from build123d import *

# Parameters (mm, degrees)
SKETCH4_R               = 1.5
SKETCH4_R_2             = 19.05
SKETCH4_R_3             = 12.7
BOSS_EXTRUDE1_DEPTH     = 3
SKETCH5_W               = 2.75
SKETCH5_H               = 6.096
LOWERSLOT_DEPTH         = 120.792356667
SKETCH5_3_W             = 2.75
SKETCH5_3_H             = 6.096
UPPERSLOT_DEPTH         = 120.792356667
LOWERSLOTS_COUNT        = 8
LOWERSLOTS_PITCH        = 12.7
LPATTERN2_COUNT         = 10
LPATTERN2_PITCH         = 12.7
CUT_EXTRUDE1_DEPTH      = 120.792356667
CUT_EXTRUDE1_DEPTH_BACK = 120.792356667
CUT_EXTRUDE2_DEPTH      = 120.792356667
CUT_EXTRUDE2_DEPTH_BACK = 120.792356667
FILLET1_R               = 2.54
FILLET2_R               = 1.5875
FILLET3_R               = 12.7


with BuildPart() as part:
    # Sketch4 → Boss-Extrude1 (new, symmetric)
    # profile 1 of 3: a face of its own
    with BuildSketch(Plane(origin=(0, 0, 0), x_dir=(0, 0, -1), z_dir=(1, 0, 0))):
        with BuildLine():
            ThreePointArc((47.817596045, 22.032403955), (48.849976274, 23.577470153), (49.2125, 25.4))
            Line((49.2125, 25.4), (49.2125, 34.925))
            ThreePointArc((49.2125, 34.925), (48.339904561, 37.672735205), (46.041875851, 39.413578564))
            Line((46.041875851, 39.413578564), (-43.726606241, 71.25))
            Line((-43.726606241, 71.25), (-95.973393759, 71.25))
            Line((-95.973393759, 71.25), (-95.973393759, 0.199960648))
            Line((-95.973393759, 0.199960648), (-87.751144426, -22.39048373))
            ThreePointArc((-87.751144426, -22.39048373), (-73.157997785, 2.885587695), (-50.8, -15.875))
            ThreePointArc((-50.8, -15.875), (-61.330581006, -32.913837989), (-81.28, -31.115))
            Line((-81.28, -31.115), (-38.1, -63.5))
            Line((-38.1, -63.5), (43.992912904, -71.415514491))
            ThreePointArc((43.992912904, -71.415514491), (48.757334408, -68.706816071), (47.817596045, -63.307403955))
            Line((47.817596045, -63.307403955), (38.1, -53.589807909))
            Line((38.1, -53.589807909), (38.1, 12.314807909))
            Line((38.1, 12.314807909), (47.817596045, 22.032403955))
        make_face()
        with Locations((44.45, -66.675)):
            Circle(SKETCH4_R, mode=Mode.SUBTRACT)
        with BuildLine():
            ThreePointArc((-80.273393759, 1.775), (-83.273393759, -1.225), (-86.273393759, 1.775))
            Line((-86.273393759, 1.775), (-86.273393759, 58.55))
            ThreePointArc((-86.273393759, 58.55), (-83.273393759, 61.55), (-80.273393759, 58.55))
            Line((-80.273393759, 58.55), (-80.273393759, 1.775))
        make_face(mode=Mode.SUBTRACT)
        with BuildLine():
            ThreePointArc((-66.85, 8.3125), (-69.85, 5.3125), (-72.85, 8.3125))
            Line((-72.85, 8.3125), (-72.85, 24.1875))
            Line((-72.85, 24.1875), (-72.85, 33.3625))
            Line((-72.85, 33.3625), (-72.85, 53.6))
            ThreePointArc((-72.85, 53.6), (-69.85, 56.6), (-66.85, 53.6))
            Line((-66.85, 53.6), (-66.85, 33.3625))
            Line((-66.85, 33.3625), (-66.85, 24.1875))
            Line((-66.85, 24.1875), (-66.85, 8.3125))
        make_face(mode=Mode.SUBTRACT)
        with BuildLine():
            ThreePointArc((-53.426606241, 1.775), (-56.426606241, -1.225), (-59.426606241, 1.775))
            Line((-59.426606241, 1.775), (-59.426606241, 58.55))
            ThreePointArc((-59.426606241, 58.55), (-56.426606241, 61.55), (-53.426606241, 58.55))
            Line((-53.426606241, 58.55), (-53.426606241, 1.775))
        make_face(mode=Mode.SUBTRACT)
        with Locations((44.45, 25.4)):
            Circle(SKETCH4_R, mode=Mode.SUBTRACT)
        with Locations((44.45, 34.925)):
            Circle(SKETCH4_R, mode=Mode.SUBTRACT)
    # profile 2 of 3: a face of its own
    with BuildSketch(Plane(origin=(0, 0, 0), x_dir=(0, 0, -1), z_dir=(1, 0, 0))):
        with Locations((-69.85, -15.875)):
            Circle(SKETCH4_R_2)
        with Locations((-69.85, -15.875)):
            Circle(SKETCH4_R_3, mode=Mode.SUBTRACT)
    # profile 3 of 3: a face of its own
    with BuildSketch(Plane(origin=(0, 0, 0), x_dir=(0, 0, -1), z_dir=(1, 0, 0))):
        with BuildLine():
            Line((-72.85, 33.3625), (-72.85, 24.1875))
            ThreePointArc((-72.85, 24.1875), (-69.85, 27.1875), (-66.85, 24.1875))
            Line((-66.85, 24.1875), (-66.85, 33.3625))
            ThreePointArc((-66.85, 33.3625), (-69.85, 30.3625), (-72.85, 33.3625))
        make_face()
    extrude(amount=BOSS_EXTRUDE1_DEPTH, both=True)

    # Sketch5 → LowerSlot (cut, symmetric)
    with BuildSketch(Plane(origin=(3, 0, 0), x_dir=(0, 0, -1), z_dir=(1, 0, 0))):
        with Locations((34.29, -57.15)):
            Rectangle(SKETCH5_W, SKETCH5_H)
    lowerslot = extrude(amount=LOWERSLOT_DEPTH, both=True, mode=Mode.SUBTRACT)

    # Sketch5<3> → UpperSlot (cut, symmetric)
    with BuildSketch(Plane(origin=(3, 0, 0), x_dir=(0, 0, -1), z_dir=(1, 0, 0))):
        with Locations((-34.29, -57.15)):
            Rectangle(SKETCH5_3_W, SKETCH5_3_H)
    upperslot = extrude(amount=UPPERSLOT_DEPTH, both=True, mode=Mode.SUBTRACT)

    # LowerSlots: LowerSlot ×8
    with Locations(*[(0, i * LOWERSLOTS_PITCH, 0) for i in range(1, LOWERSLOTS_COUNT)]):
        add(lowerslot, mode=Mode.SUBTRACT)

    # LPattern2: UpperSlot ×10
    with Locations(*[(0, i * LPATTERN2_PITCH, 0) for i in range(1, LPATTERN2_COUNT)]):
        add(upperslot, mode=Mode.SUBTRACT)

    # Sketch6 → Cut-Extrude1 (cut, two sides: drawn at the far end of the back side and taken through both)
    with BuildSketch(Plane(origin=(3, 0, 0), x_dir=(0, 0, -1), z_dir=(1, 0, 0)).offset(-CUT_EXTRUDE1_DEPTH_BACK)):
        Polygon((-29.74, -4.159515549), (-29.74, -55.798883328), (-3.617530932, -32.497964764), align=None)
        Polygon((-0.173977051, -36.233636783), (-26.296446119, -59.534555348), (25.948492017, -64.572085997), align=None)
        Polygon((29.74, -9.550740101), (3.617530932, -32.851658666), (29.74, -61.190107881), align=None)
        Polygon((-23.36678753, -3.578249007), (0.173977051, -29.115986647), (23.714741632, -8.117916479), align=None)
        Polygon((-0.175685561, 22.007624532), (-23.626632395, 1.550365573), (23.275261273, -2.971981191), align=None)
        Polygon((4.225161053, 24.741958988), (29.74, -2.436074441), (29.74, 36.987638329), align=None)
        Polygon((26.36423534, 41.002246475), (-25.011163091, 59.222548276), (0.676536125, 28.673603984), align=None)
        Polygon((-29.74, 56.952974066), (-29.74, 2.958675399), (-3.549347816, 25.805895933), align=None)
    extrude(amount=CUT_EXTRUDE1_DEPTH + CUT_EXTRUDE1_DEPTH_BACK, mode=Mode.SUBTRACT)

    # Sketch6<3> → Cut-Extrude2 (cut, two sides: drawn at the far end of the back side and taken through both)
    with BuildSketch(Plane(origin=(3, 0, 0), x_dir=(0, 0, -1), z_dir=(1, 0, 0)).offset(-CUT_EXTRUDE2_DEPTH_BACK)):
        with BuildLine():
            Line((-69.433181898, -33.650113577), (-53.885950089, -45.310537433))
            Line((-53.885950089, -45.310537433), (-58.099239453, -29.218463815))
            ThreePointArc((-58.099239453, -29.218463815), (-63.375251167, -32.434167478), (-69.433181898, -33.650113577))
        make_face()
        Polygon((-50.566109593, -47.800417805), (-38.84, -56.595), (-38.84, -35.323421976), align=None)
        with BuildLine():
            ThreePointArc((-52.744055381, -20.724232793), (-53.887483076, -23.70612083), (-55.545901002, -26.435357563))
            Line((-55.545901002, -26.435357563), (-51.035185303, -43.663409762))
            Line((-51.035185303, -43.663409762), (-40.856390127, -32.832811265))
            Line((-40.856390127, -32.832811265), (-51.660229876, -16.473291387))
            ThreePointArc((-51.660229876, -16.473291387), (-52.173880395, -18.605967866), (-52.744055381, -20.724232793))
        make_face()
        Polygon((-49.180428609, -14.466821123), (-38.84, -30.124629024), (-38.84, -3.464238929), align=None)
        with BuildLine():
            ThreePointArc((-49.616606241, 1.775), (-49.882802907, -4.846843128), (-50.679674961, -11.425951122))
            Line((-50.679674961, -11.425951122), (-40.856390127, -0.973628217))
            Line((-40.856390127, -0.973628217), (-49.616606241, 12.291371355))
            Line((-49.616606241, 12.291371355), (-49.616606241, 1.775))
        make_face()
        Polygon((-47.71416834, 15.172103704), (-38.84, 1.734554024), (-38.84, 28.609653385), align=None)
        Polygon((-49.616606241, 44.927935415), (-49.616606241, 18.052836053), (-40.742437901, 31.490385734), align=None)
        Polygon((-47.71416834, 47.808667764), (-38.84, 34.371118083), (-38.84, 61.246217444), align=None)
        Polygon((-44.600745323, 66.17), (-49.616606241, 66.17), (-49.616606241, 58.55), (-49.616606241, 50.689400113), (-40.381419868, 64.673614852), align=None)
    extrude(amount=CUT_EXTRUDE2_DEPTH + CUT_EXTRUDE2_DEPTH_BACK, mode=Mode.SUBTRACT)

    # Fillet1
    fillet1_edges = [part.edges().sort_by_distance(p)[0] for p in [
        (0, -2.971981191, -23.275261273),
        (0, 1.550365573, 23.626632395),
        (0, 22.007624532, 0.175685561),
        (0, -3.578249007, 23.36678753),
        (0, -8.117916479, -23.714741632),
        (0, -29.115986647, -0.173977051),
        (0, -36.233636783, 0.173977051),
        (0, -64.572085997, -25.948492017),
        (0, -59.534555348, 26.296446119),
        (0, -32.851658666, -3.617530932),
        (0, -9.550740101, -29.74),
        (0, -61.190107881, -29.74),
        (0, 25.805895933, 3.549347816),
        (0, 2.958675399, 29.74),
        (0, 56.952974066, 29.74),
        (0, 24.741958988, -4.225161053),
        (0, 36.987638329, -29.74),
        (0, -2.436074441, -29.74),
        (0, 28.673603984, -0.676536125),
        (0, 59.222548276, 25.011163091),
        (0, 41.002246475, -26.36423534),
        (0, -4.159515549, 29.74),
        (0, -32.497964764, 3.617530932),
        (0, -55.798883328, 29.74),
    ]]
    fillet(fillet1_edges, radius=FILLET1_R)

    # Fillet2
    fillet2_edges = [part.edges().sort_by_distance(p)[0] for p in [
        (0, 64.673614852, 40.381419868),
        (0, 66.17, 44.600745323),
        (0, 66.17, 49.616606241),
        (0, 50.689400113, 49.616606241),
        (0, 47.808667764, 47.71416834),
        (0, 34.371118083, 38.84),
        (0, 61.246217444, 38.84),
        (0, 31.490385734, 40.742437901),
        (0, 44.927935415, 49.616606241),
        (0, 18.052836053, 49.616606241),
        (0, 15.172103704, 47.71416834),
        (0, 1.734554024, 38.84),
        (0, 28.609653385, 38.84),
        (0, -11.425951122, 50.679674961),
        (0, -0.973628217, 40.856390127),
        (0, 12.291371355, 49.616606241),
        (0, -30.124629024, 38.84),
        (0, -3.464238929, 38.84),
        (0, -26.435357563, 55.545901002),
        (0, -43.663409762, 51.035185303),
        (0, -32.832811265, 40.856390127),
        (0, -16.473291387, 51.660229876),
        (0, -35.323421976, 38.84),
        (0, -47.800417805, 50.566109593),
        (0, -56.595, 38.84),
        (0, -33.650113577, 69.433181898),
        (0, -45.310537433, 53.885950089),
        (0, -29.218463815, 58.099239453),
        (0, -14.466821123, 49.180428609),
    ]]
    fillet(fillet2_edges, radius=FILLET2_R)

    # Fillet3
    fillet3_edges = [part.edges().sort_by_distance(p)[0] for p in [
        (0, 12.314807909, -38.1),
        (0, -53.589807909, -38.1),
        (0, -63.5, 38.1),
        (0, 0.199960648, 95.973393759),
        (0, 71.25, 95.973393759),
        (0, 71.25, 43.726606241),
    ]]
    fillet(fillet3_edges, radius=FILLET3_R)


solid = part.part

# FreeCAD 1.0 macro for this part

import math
import FreeCAD as App
import Part
import Sketcher
from FreeCAD import Vector
Q = App.Units.Quantity


def edges_at(feature, points):
    """Names of the edges that pass closest to the given points."""
    edges = feature.Shape.Edges
    near = lambda p: min(range(len(edges)), key=lambda i: edges[i].distToShape(Part.Vertex(*p))[0])
    return sorted({f"Edge{near(p) + 1}" for p in points})


def add_polygon(sketch, points):
    """Adds a closed chain of lines whose ends are joined by coincident constraints."""
    first, n = sketch.GeometryCount, len(points)
    for a, b in zip(points, points[1:] + points[:1]):
        sketch.addGeometry(Part.LineSegment(App.Vector(*a, 0), App.Vector(*b, 0)), False)
    for i in range(n):
        sketch.addConstraint(Sketcher.Constraint("Coincident", first + i, 2, first + (i + 1) % n, 1))

doc = App.newDocument("Part")
body = doc.addObject("PartDesign::Body", "Body")

# Sketch on YZ plane
sketch1 = doc.addObject("Sketcher::SketchObject", "Sketch")
body.addObject(sketch1)
sketch1.AttachmentSupport = (doc.YZ_Plane, [""])
sketch1.MapMode = "FlatFace"
sketch1.addGeometry([
    Part.ArcOfCircle(Part.Circle(Vector(25.4, -44.5, 0), Vector(0, 0, 1), 4.8), math.radians(-135), math.radians(-90)),  # 0
    Part.LineSegment(Vector(25.4, -49.2, 0), Vector(34.9, -49.2, 0)),  # 1
    Part.ArcOfCircle(Part.Circle(Vector(34.9, -44.5, 0), Vector(0, 0, 1), 4.8), math.radians(-90), math.radians(-20)),  # 2
    Part.LineSegment(Vector(39.4, -46, 0), Vector(71.2, 43.7, 0)),  # 3
    Part.LineSegment(Vector(71.2, 43.7, 0), Vector(71.2, 96, 0)),  # 4
    Part.LineSegment(Vector(71.2, 96, 0), Vector(0.2, 96, 0)),  # 5
    Part.LineSegment(Vector(0.2, 96, 0), Vector(-22.4, 87.8, 0)),  # 6
    Part.ArcOfCircle(Part.Circle(Vector(-15.9, 69.8, 0), Vector(0, 0, 1), 19.1), math.radians(110), math.radians(143)),  # 7
    Part.LineSegment(Vector(-31.1, 81.3, 0), Vector(-63.5, 38.1, 0)),  # 8
    Part.LineSegment(Vector(-63.5, 38.1, 0), Vector(-71.4, -44, 0)),  # 9
    Part.ArcOfCircle(Part.Circle(Vector(-66.7, -44.5, 0), Vector(0, 0, 1), 4.8), math.radians(174), math.radians(315)),  # 10
    Part.LineSegment(Vector(-63.3, -47.8, 0), Vector(-53.6, -38.1, 0)),  # 11
    Part.LineSegment(Vector(-53.6, -38.1, 0), Vector(12.3, -38.1, 0)),  # 12
    Part.LineSegment(Vector(12.3, -38.1, 0), Vector(22, -47.8, 0)),  # 13
    Part.Circle(Vector(-66.7, -44.5, 0), Vector(0, 0, 1), 1.5),  # 14
    Part.LineSegment(Vector(58.5, 80.3, 0), Vector(1.8, 80.3, 0)),  # 15
    Part.ArcOfCircle(Part.Circle(Vector(1.8, 83.3, 0), Vector(0, 0, 1), 3), math.radians(90), math.radians(270)),  # 16
    Part.LineSegment(Vector(1.8, 86.3, 0), Vector(58.5, 86.3, 0)),  # 17
    Part.ArcOfCircle(Part.Circle(Vector(58.5, 83.3, 0), Vector(0, 0, 1), 3), math.radians(-90), math.radians(90)),  # 18
    Part.LineSegment(Vector(53.6, 66.8, 0), Vector(33.4, 66.8, 0)),  # 19
    Part.ArcOfCircle(Part.Circle(Vector(33.4, 69.8, 0), Vector(0, 0, 1), 3), math.radians(90), math.radians(270)),  # 20
    Part.LineSegment(Vector(33.4, 72.8, 0), Vector(53.6, 72.8, 0)),  # 21
    Part.ArcOfCircle(Part.Circle(Vector(53.6, 69.8, 0), Vector(0, 0, 1), 3), math.radians(-90), math.radians(90)),  # 22
    Part.LineSegment(Vector(24.2, 66.8, 0), Vector(8.3, 66.8, 0)),  # 23
    Part.ArcOfCircle(Part.Circle(Vector(8.3, 69.8, 0), Vector(0, 0, 1), 3), math.radians(90), math.radians(270)),  # 24
    Part.LineSegment(Vector(8.3, 72.8, 0), Vector(24.2, 72.8, 0)),  # 25
    Part.ArcOfCircle(Part.Circle(Vector(24.2, 69.8, 0), Vector(0, 0, 1), 3), math.radians(-90), math.radians(90)),  # 26
    Part.LineSegment(Vector(58.5, 53.4, 0), Vector(1.8, 53.4, 0)),  # 27
    Part.ArcOfCircle(Part.Circle(Vector(1.8, 56.4, 0), Vector(0, 0, 1), 3), math.radians(90), math.radians(270)),  # 28
    Part.LineSegment(Vector(1.8, 59.4, 0), Vector(58.5, 59.4, 0)),  # 29
    Part.ArcOfCircle(Part.Circle(Vector(58.5, 56.4, 0), Vector(0, 0, 1), 3), math.radians(-90), math.radians(90)),  # 30
    Part.Circle(Vector(25.4, -44.5, 0), Vector(0, 0, 1), 1.5),  # 31
    Part.Circle(Vector(34.9, -44.5, 0), Vector(0, 0, 1), 1.5),  # 32
    Part.Circle(Vector(-15.9, 69.8, 0), Vector(0, 0, 1), 12.7),  # 33
], False)
sketch1.addConstraint([
    Sketcher.Constraint("Tangent", 0, 2, 1, 1),
    Sketcher.Constraint("Tangent", 1, 2, 2, 1),
    Sketcher.Constraint("Tangent", 2, 2, 3, 1),
    Sketcher.Constraint("Coincident", 3, 2, 4, 1),
    Sketcher.Constraint("Coincident", 4, 2, 5, 1),
    Sketcher.Constraint("Coincident", 5, 2, 6, 1),
    Sketcher.Constraint("Tangent", 6, 2, 7, 1),
    Sketcher.Constraint("Tangent", 7, 2, 8, 1),
    Sketcher.Constraint("Coincident", 8, 2, 9, 1),
    Sketcher.Constraint("Tangent", 9, 2, 10, 1),
    Sketcher.Constraint("Tangent", 10, 2, 11, 1),
    Sketcher.Constraint("Coincident", 11, 2, 12, 1),
    Sketcher.Constraint("Coincident", 12, 2, 13, 1),
    Sketcher.Constraint("Tangent", 13, 2, 0, 1),
    Sketcher.Constraint("Tangent", 15, 2, 16, 2),
    Sketcher.Constraint("Tangent", 16, 1, 17, 1),
    Sketcher.Constraint("Tangent", 17, 2, 18, 2),
    Sketcher.Constraint("Tangent", 18, 1, 15, 1),
    Sketcher.Constraint("Tangent", 19, 2, 20, 2),
    Sketcher.Constraint("Tangent", 20, 1, 21, 1),
    Sketcher.Constraint("Tangent", 21, 2, 22, 2),
    Sketcher.Constraint("Tangent", 22, 1, 19, 1),
    Sketcher.Constraint("Tangent", 23, 2, 24, 2),
    Sketcher.Constraint("Tangent", 24, 1, 25, 1),
    Sketcher.Constraint("Tangent", 25, 2, 26, 2),
    Sketcher.Constraint("Tangent", 26, 1, 23, 1),
    Sketcher.Constraint("Tangent", 27, 2, 28, 2),
    Sketcher.Constraint("Tangent", 28, 1, 29, 1),
    Sketcher.Constraint("Tangent", 29, 2, 30, 2),
    Sketcher.Constraint("Tangent", 30, 1, 27, 1),
    Sketcher.Constraint("Horizontal", 1),
    Sketcher.Constraint("Vertical", 4),
    Sketcher.Constraint("Horizontal", 5),
    Sketcher.Constraint("Horizontal", 12),
    Sketcher.Constraint("Horizontal", 15),
    Sketcher.Constraint("Horizontal", 17),
    Sketcher.Constraint("Horizontal", 19),
    Sketcher.Constraint("Horizontal", 21),
    Sketcher.Constraint("Horizontal", 23),
    Sketcher.Constraint("Horizontal", 25),
    Sketcher.Constraint("Horizontal", 27),
    Sketcher.Constraint("Horizontal", 29),
    Sketcher.Constraint("Coincident", 14, 3, 10, 3),
    Sketcher.Constraint("Coincident", 31, 3, 0, 3),
    Sketcher.Constraint("Coincident", 32, 3, 2, 3),
    Sketcher.Constraint("Coincident", 33, 3, 7, 3),
    Sketcher.Constraint("Equal", 0, 2),
    Sketcher.Constraint("Equal", 2, 10),
    Sketcher.Constraint("Equal", 18, 20),
    Sketcher.Constraint("Equal", 22, 24),
    Sketcher.Constraint("Equal", 26, 28),
    Sketcher.Constraint("Equal", 14, 31),
    Sketcher.Constraint("Equal", 31, 32),
    Sketcher.Constraint("Perpendicular", 11, 13),
    Sketcher.Constraint("Horizontal", 2, 3, 10, 3),
    Sketcher.Constraint("Horizontal", 7, 3, 20, 3),
    Sketcher.Constraint("Horizontal", 22, 3, 24, 3),
    Sketcher.Constraint("Horizontal", 10, 2, 13, 2),
    Sketcher.Constraint("Vertical", 16, 3, 28, 3),
    Sketcher.Constraint("Vertical", 18, 3, 30, 3),
    Sketcher.Constraint("Diameter", 33, Q("1 in")),
    Sketcher.Constraint("Radius", 7, Q("0.75 in")),
    Sketcher.Constraint("DistanceX", -1, 1, 0, 3, Q("1 in")),
    Sketcher.Constraint("Angle", 6, Q("-160 deg")),
    Sketcher.Constraint("Radius", 0, Q("0.1875 in")),
    Sketcher.Constraint("DistanceX", 7, 3, 2, 3, Q("2 in")),
    Sketcher.Constraint("DistanceX", 10, 3, 2, 3, Q("4 in")),
    Sketcher.Constraint("DistanceY", 11, 2, 8, 2, Q("3 in")),
    Sketcher.Constraint("DistanceY", -1, 1, 7, 2, Q("3.2 in")),
    Sketcher.Constraint("DistanceX", 8, 2, -1, 1, Q("2.5 in")),
    Sketcher.Constraint("DistanceY", -1, 1, 8, 2, Q("1.5 in")),
    Sketcher.Constraint("DistanceY", 0, 3, 7, 3, Q("4.5 in")),
    Sketcher.Constraint("DistanceX", 30, 3, 3, 2, Q("0.5 in")),
    Sketcher.Constraint("DistanceY", 3, 2, 30, 3, Q("0.5 in")),
    Sketcher.Constraint("DistanceY", 18, 3, 4, 2, Q("0.5 in")),
    Sketcher.Constraint("DistanceX", 7, 2, 7, 3, Q("0.6 in")),
    Sketcher.Constraint("Diameter", 14, Q("3 mm")),
    Sketcher.Constraint("DistanceX", 23, 2, 23, 1, Q("0.625 in")),
    Sketcher.Constraint("Radius", 16, Q("3 mm")),
    Sketcher.Constraint("DistanceX", 15, 2, 15, 1, Q("56.775 mm")),
    Sketcher.Constraint("DistanceX", 19, 2, 19, 1, Q("20.2375 mm")),
    Sketcher.Constraint("DistanceX", 5, 2, 5, 1, Q("71.050039 mm")),
    Sketcher.Constraint("DistanceX", -1, 1, 16, 3, Q("1.775 mm")),
    Sketcher.Constraint("DistanceX", -1, 1, 20, 3, Q("33.3625 mm")),
    Sketcher.Constraint("DistanceX", -1, 1, 24, 3, Q("8.3125 mm")),
    Sketcher.Constraint("DistanceY", 4, 1, 4, 2, Q("52.246788 mm")),
])
pad1 = doc.addObject("PartDesign::Pad", "Pad")
body.addObject(pad1)
pad1.Profile = sketch1
pad1.Length = 6
pad1.Midplane = True

# Sketch on YZ plane
sketch2 = doc.addObject("Sketcher::SketchObject", "Sketch001")
body.addObject(sketch2)
sketch2.AttachmentSupport = (doc.YZ_Plane, [""])
sketch2.MapMode = "FlatFace"
sketch2.AttachmentOffset = App.Placement(Vector(0, 0, 3), App.Rotation())
add_polygon(sketch2, [(-54.1, -32.9), (-60.2, -32.9), (-60.2, -35.7), (-54.1, -35.7)])  # lines 0-3
sketch2.addConstraint([
    Sketcher.Constraint("Horizontal", 0),
    Sketcher.Constraint("Vertical", 1),
    Sketcher.Constraint("Horizontal", 2),
    Sketcher.Constraint("Vertical", 3),
    Sketcher.Constraint("DistanceX", 0, 2, 0, 1, Q("0.24 in")),
    Sketcher.Constraint("DistanceX", 0, 2, -1, 1, Q("2.37 in")),
    Sketcher.Constraint("DistanceY", 1, 2, 1, 1, Q("2.75 mm")),
    Sketcher.Constraint("DistanceY", 0, 2, -1, 1, Q("32.915 mm")),
])
pocket1 = doc.addObject("PartDesign::Pocket", "Pocket")
body.addObject(pocket1)
pocket1.Profile = sketch2
pocket1.Length = 241.584713
pocket1.Midplane = True

# Sketch on YZ plane
sketch3 = doc.addObject("Sketcher::SketchObject", "Sketch002")
body.addObject(sketch3)
sketch3.AttachmentSupport = (doc.YZ_Plane, [""])
sketch3.MapMode = "FlatFace"
sketch3.AttachmentOffset = App.Placement(Vector(0, 0, 3), App.Rotation())
add_polygon(sketch3, [(-54.1, 35.7), (-60.2, 35.7), (-60.2, 32.9), (-54.1, 32.9)])  # lines 0-3
sketch3.addConstraint([
    Sketcher.Constraint("Horizontal", 0),
    Sketcher.Constraint("Vertical", 1),
    Sketcher.Constraint("Horizontal", 2),
    Sketcher.Constraint("Vertical", 3),
    Sketcher.Constraint("DistanceX", 0, 2, 0, 1, Q("0.24 in")),
    Sketcher.Constraint("DistanceX", 0, 2, -1, 1, Q("2.37 in")),
    Sketcher.Constraint("DistanceY", 1, 2, 1, 1, Q("2.75 mm")),
    Sketcher.Constraint("DistanceY", -1, 1, 0, 2, Q("35.665 mm")),
])
pocket2 = doc.addObject("PartDesign::Pocket", "Pocket001")
body.addObject(pocket2)
pocket2.Profile = sketch3
pocket2.Length = 241.584713
pocket2.Midplane = True
doc.recompute()

linearpattern = doc.addObject("PartDesign::LinearPattern", "LinearPattern")
body.addObject(linearpattern)
linearpattern.Originals = [pocket1]
linearpattern.Direction = (doc.Y_Axis, [""])
linearpattern.Mode = "offset"
linearpattern.Offset = Q("0.5 in")
linearpattern.Occurrences = 8
body.Tip = linearpattern
doc.recompute()

linearpattern2 = doc.addObject("PartDesign::LinearPattern", "LinearPattern001")
body.addObject(linearpattern2)
linearpattern2.Originals = [pocket2]
linearpattern2.Direction = (doc.Y_Axis, [""])
linearpattern2.Mode = "offset"
linearpattern2.Offset = Q("0.5 in")
linearpattern2.Occurrences = 10
body.Tip = linearpattern2

# Sketch on YZ plane
sketch4 = doc.addObject("Sketcher::SketchObject", "Sketch003")
body.addObject(sketch4)
sketch4.AttachmentSupport = (doc.YZ_Plane, [""])
sketch4.MapMode = "FlatFace"
sketch4.AttachmentOffset = App.Placement(Vector(0, 0, 3), App.Rotation())
add_polygon(sketch4, [(-4, 30), (-56, 30), (-32, 4)])  # lines 0-2
add_polygon(sketch4, [(-36, 0), (-60, 26), (-65, -26)])  # lines 3-5
add_polygon(sketch4, [(-10, -30), (-33, -4), (-61, -30)])  # lines 6-8
add_polygon(sketch4, [(-4, 23), (-29, 0), (-8, -24)])  # lines 9-11
add_polygon(sketch4, [(22, 0), (2, 24), (-3, -23)])  # lines 12-14
add_polygon(sketch4, [(25, -4), (-2, -30), (37, -30)])  # lines 15-17
add_polygon(sketch4, [(41, -26), (59, 25), (29, -1)])  # lines 18-20
add_polygon(sketch4, [(57, 30), (3, 30), (26, 4)])  # lines 21-23
sketch4.addConstraint([
    Sketcher.Constraint("Horizontal", 0),
    Sketcher.Constraint("Horizontal", 8),
    Sketcher.Constraint("Horizontal", 16),
    Sketcher.Constraint("Horizontal", 21),
    Sketcher.Constraint("Parallel", 1, 3),
    Sketcher.Constraint("Parallel", 2, 5),
    Sketcher.Constraint("Parallel", 3, 6),
    Sketcher.Constraint("Parallel", 5, 7),
    Sketcher.Constraint("Parallel", 7, 9),
    Sketcher.Constraint("Parallel", 6, 10),
    Sketcher.Constraint("Parallel", 4, 11),
    Sketcher.Constraint("Parallel", 11, 13),
    Sketcher.Constraint("Parallel", 14, 15),
    Sketcher.Constraint("Parallel", 17, 20),
    Sketcher.Constraint("Parallel", 12, 22),
    Sketcher.Constraint("Parallel", 19, 23),
    Sketcher.Constraint("Horizontal", 8, 2, 15, 2),
    Sketcher.Constraint("Horizontal", 2, 2, 21, 2),
    Sketcher.Constraint("Equal", 0, 8),
    Sketcher.Constraint("Equal", 1, 3),
    Sketcher.Constraint("Equal", 2, 5),
    Sketcher.Constraint("Distance", 11, Q("1.8622001 in")),
    Sketcher.Constraint("DistanceX", 21, 2, 21, 1, Q("53.994299 mm")),
    Sketcher.Constraint("DistanceX", 13, 2, 17, 2, Q("1.0911 in")),
    Sketcher.Constraint("DistanceY", 20, 2, 22, 2, Q("1.1777001 in")),
    Sketcher.Constraint("Distance", 17, Q("28.301302 mm")),
    Sketcher.Constraint("DistanceY", -1, 1, 0, 2, Q("29.74 mm")),
    Sketcher.Constraint("DistanceY", 7, 2, -1, 1, Q("29.74 mm")),
    Sketcher.Constraint("DistanceY", 1, 2, 12, 2, Q("20.009101 mm")),
    Sketcher.Constraint("DistanceY", 14, 2, 11, 2, Q("23.191102 mm")),
    Sketcher.Constraint("DistanceX", 15, 2, 14, 2, Q("24.443699 mm")),
    Sketcher.Constraint("DistanceY", 13, 2, 17, 2, Q("19.0501 mm")),
    Sketcher.Constraint("DistanceY", 20, 2, 19, 2, Q("25.687699 mm")),
    Sketcher.Constraint("Distance", 2, Q("38.54155 mm")),
    Sketcher.Constraint("Distance", 4, Q("52.487239 mm")),
    Sketcher.Constraint("Distance", 12, Q("31.119871 mm")),
    Sketcher.Constraint("Distance", 18, Q("54.51065 mm")),
    Sketcher.Constraint("Distance", 20, Q("28.49304 mm")),
    Sketcher.Constraint("DistanceX", 0, 2, 0, 1, Q("51.639368 mm")),
    Sketcher.Constraint("DistanceX", 6, 2, -1, 1, Q("32.851659 mm")),
    Sketcher.Constraint("DistanceX", 11, 2, -1, 1, Q("3.578249 mm")),
    Sketcher.Constraint("DistanceX", 13, 2, -1, 1, Q("2.971981 mm")),
    Sketcher.Constraint("DistanceX", -1, 1, 18, 2, Q("59.222548 mm")),
    Sketcher.Constraint("DistanceX", 3, 2, 1, 2, Q("27.036591 mm")),
    Sketcher.Constraint("DistanceX", 5, 2, 6, 2, Q("3.381978 mm")),
    Sketcher.Constraint("DistanceY", 4, 2, 6, 2, Q("22.330961 mm")),
    Sketcher.Constraint("DistanceY", 12, 2, 18, 2, Q("1.384531 mm")),
    Sketcher.Constraint("DistanceX", 12, 2, 21, 2, Q("1.40831 mm")),
])
pocket3 = doc.addObject("PartDesign::Pocket", "Pocket002")
body.addObject(pocket3)
pocket3.Profile = sketch4
pocket3.Type = "ThroughAll"
pocket3.Midplane = True

# Sketch on YZ plane
sketch5 = doc.addObject("Sketcher::SketchObject", "Sketch004")
body.addObject(sketch5)
sketch5.AttachmentSupport = (doc.YZ_Plane, [""])
sketch5.MapMode = "FlatFace"
sketch5.AttachmentOffset = App.Placement(Vector(0, 0, 3), App.Rotation())
sketch5.addGeometry(Part.LineSegment(Vector(-33.7, 69.4, 0), Vector(-45.3, 53.9, 0)), False)  # 0
sketch5.addGeometry(Part.LineSegment(Vector(-45.3, 53.9, 0), Vector(-29.2, 58.1, 0)), False)  # 1
sketch5.addGeometry(Part.ArcOfCircle(Part.Circle(Vector(-15.9, 69.8, 0), Vector(0, 0, 1), 17.8), math.radians(-179), math.radians(-139)), False)  # 2
add_polygon(sketch5, [(-47.8, 50.6), (-56.6, 38.8), (-35.3, 38.8)])  # lines 3-5
sketch5.addGeometry(Part.ArcOfCircle(Part.Circle(Vector(-15.9, 69.8, 0), Vector(0, 0, 1), 17.8), math.radians(-126), math.radians(-106)), False)  # 6
sketch5.addGeometry(Part.LineSegment(Vector(-26.4, 55.5, 0), Vector(-43.7, 51, 0)), False)  # 7
sketch5.addGeometry(Part.LineSegment(Vector(-43.7, 51, 0), Vector(-32.8, 40.9, 0)), False)  # 8
sketch5.addGeometry(Part.LineSegment(Vector(-32.8, 40.9, 0), Vector(-16.5, 51.7, 0)), False)  # 9
sketch5.addGeometry(Part.ArcOfCircle(Part.Circle(Vector(1.8, 132.1, 0), Vector(0, 0, 1), 82.5), math.radians(-105.83), math.radians(-102.78)), False)  # 10
add_polygon(sketch5, [(-14.5, 49.2), (-30.1, 38.8), (-3.5, 38.8)])  # lines 11-13
sketch5.addGeometry(Part.ArcOfCircle(Part.Circle(Vector(1.8, 132.1, 0), Vector(0, 0, 1), 82.5), math.radians(-99.21), math.radians(-90)), False)  # 14
sketch5.addGeometry(Part.LineSegment(Vector(-11.4, 50.7, 0), Vector(-1, 40.9, 0)), False)  # 15
sketch5.addGeometry(Part.LineSegment(Vector(-1, 40.9, 0), Vector(12.3, 49.6, 0)), False)  # 16
sketch5.addGeometry(Part.LineSegment(Vector(12.3, 49.6, 0), Vector(1.8, 49.6, 0)), False)  # 17
add_polygon(sketch5, [(15.2, 47.7), (1.7, 38.8), (28.6, 38.8)])  # lines 18-20
add_polygon(sketch5, [(44.9, 49.6), (18.1, 49.6), (31.5, 40.7)])  # lines 21-23
add_polygon(sketch5, [(47.8, 47.7), (34.4, 38.8), (61.2, 38.8)])  # lines 24-26
add_polygon(sketch5, [(66.2, 44.6), (66.2, 49.6), (50.7, 49.6), (64.7, 40.4)])  # lines 27-30
sketch5.addConstraint([
    Sketcher.Constraint("Coincident", 0, 2, 1, 1),
    Sketcher.Constraint("Coincident", 1, 2, 2, 2),
    Sketcher.Constraint("Coincident", 2, 1, 0, 1),
    Sketcher.Constraint("Coincident", 6, 1, 7, 1),
    Sketcher.Constraint("Coincident", 7, 2, 8, 1),
    Sketcher.Constraint("Coincident", 8, 2, 9, 1),
    Sketcher.Constraint("Coincident", 9, 2, 10, 2),
    Sketcher.Constraint("Tangent", 10, 1, 6, 2),
    Sketcher.Constraint("Coincident", 14, 1, 15, 1),
    Sketcher.Constraint("Coincident", 15, 2, 16, 1),
    Sketcher.Constraint("Coincident", 16, 2, 17, 1),
    Sketcher.Constraint("Tangent", 17, 2, 14, 2),
    Sketcher.Constraint("Horizontal", 4),
    Sketcher.Constraint("Horizontal", 12),
    Sketcher.Constraint("Horizontal", 17),
    Sketcher.Constraint("Horizontal", 19),
    Sketcher.Constraint("Horizontal", 21),
    Sketcher.Constraint("Horizontal", 25),
    Sketcher.Constraint("Vertical", 27),
    Sketcher.Constraint("Horizontal", 28),
    Sketcher.Constraint("Coincident", 6, 3, 2, 3),
    Sketcher.Constraint("Coincident", 14, 3, 10, 3),
    Sketcher.Constraint("Equal", 2, 6),
    Sketcher.Constraint("Equal", 10, 14),
    Sketcher.Constraint("Parallel", 0, 3),
    Sketcher.Constraint("Parallel", 1, 7),
    Sketcher.Constraint("Parallel", 5, 8),
    Sketcher.Constraint("Parallel", 9, 11),
    Sketcher.Constraint("Parallel", 8, 13),
    Sketcher.Constraint("Parallel", 13, 15),
    Sketcher.Constraint("Parallel", 11, 16),
    Sketcher.Constraint("Parallel", 16, 18),
    Sketcher.Constraint("Parallel", 20, 22),
    Sketcher.Constraint("Parallel", 18, 23),
    Sketcher.Constraint("Parallel", 23, 24),
    Sketcher.Constraint("Parallel", 22, 26),
    Sketcher.Constraint("Parallel", 26, 29),
    Sketcher.Constraint("Horizontal", 4, 2, 11, 2),
    Sketcher.Constraint("Horizontal", 8, 2, 15, 2),
    Sketcher.Constraint("Horizontal", 12, 2, 18, 2),
    Sketcher.Constraint("Horizontal", 17, 2, 21, 2),
    Sketcher.Constraint("Horizontal", 19, 2, 24, 2),
    Sketcher.Constraint("Horizontal", 20, 2, 26, 2),
    Sketcher.Constraint("Horizontal", 23, 2, 27, 2),
    Sketcher.Constraint("Equal", 19, 21),
    Sketcher.Constraint("Equal", 18, 20),
    Sketcher.Constraint("Radius", 2, Q("0.7 in")),
    Sketcher.Constraint("DistanceY", -1, 1, 2, 3, Q("2.75 in")),
    Sketcher.Constraint("DistanceX", 2, 3, -1, 1, Q("0.625 in")),
    Sketcher.Constraint("Radius", 10, Q("82.494772 mm")),
    Sketcher.Constraint("DistanceX", 19, 1, 19, 2, Q("26.875099 mm")),
    Sketcher.Constraint("DistanceX", 28, 2, 28, 1, Q("15.4806 mm")),
    Sketcher.Constraint("Distance", 1, Q("16.634502 mm")),
    Sketcher.Constraint("Distance", 11, Q("18.764099 mm")),
    Sketcher.Constraint("DistanceX", 4, 1, 4, 2, Q("21.271578 mm")),
    Sketcher.Constraint("DistanceX", 12, 1, 12, 2, Q("26.66039 mm")),
    Sketcher.Constraint("DistanceX", 17, 2, 17, 1, Q("10.516371 mm")),
    Sketcher.Constraint("DistanceY", 27, 1, 27, 2, Q("5.015861 mm")),
    Sketcher.Constraint("DistanceX", -1, 1, 10, 3, Q("1.775 mm")),
    Sketcher.Constraint("DistanceX", 3, 2, -1, 1, Q("56.595 mm")),
    Sketcher.Constraint("DistanceY", -1, 1, 3, 2, Q("38.84 mm")),
    Sketcher.Constraint("DistanceY", -1, 1, 6, 1, Q("55.545901 mm")),
    Sketcher.Constraint("DistanceX", -1, 1, 27, 2, Q("66.17 mm")),
    Sketcher.Constraint("DistanceX", 7, 2, 8, 2, Q("10.830598 mm")),
    Sketcher.Constraint("DistanceY", 13, 2, 9, 2, Q("2.479801 mm")),
    Sketcher.Constraint("DistanceX", 15, 2, 16, 2, Q("13.265 mm")),
    Sketcher.Constraint("Distance", 0, Q("19.43404 mm")),
    Sketcher.Constraint("Distance", 7, Q("17.808771 mm")),
    Sketcher.Constraint("Distance", 29, Q("16.758488 mm")),
    Sketcher.Constraint("DistanceY", -1, 1, 0, 2, Q("53.88595 mm")),
    Sketcher.Constraint("DistanceX", 11, 2, -1, 1, Q("30.124629 mm")),
    Sketcher.Constraint("DistanceX", -1, 1, 24, 2, Q("34.371118 mm")),
    Sketcher.Constraint("DistanceX", 15, 2, 19, 2, Q("29.583282 mm")),
    Sketcher.Constraint("DistanceX", 18, 2, 22, 2, Q("29.755832 mm")),
])
pocket4 = doc.addObject("PartDesign::Pocket", "Pocket003")
body.addObject(pocket4)
pocket4.Profile = sketch5
pocket4.Type = "ThroughAll"
pocket4.Midplane = True
doc.recompute()

fillet = doc.addObject("PartDesign::Fillet", "Fillet")
body.addObject(fillet)
fillet.Base = (pocket4, edges_at(pocket4, [
    (0, -2.972, -23.275),
    (0, 1.55, 23.627),
    (0, 22.008, 0.176),
    (0, -3.578, 23.367),
    (0, -8.118, -23.715),
    (0, -29.116, -0.174),
    (0, -36.234, 0.174),
    (0, -64.572, -25.948),
    (0, -59.535, 26.296),
    (0, -32.852, -3.618),
    (0, -9.551, -29.74),
    (0, -61.19, -29.74),
    (0, 25.806, 3.549),
    (0, 2.959, 29.74),
    (0, 56.953, 29.74),
    (0, 24.742, -4.225),
    (0, 36.988, -29.74),
    (0, -2.436, -29.74),
    (0, 28.674, -0.677),
    (0, 59.223, 25.011),
    (0, 41.002, -26.364),
    (0, -4.16, 29.74),
    (0, -32.498, 3.618),
    (0, -55.799, 29.74),
]))
fillet.Radius = Q("0.1 in")
doc.recompute()

fillet2 = doc.addObject("PartDesign::Fillet", "Fillet001")
body.addObject(fillet2)
fillet2.Base = (fillet, edges_at(fillet, [
    (0, 64.674, 40.381),
    (0, 66.17, 44.601),
    (0, 66.17, 49.617),
    (0, 50.689, 49.617),
    (0, 47.809, 47.714),
    (0, 34.371, 38.84),
    (0, 61.246, 38.84),
    (0, 31.49, 40.742),
    (0, 44.928, 49.617),
    (0, 18.053, 49.617),
    (0, 15.172, 47.714),
    (0, 1.735, 38.84),
    (0, 28.61, 38.84),
    (0, -11.426, 50.68),
    (0, -0.974, 40.856),
    (0, 12.291, 49.617),
    (0, -30.125, 38.84),
    (0, -3.464, 38.84),
    (0, -26.435, 55.546),
    (0, -43.663, 51.035),
    (0, -32.833, 40.856),
    (0, -16.473, 51.66),
    (0, -35.323, 38.84),
    (0, -47.8, 50.566),
    (0, -56.595, 38.84),
    (0, -33.65, 69.433),
    (0, -45.311, 53.886),
    (0, -29.218, 58.099),
    (0, -14.467, 49.18),
]))
fillet2.Radius = Q("0.0625 in")
doc.recompute()

fillet3 = doc.addObject("PartDesign::Fillet", "Fillet002")
body.addObject(fillet3)
fillet3.Base = (fillet2, edges_at(fillet2, [
    (0, 12.315, -38.1),
    (0, -53.59, -38.1),
    (0, -63.5, 38.1),
    (0, 0.2, 95.973),
    (0, 71.25, 95.973),
    (0, 71.25, 43.727),
]))
fillet3.Radius = Q("0.5 in")

doc.recompute()
